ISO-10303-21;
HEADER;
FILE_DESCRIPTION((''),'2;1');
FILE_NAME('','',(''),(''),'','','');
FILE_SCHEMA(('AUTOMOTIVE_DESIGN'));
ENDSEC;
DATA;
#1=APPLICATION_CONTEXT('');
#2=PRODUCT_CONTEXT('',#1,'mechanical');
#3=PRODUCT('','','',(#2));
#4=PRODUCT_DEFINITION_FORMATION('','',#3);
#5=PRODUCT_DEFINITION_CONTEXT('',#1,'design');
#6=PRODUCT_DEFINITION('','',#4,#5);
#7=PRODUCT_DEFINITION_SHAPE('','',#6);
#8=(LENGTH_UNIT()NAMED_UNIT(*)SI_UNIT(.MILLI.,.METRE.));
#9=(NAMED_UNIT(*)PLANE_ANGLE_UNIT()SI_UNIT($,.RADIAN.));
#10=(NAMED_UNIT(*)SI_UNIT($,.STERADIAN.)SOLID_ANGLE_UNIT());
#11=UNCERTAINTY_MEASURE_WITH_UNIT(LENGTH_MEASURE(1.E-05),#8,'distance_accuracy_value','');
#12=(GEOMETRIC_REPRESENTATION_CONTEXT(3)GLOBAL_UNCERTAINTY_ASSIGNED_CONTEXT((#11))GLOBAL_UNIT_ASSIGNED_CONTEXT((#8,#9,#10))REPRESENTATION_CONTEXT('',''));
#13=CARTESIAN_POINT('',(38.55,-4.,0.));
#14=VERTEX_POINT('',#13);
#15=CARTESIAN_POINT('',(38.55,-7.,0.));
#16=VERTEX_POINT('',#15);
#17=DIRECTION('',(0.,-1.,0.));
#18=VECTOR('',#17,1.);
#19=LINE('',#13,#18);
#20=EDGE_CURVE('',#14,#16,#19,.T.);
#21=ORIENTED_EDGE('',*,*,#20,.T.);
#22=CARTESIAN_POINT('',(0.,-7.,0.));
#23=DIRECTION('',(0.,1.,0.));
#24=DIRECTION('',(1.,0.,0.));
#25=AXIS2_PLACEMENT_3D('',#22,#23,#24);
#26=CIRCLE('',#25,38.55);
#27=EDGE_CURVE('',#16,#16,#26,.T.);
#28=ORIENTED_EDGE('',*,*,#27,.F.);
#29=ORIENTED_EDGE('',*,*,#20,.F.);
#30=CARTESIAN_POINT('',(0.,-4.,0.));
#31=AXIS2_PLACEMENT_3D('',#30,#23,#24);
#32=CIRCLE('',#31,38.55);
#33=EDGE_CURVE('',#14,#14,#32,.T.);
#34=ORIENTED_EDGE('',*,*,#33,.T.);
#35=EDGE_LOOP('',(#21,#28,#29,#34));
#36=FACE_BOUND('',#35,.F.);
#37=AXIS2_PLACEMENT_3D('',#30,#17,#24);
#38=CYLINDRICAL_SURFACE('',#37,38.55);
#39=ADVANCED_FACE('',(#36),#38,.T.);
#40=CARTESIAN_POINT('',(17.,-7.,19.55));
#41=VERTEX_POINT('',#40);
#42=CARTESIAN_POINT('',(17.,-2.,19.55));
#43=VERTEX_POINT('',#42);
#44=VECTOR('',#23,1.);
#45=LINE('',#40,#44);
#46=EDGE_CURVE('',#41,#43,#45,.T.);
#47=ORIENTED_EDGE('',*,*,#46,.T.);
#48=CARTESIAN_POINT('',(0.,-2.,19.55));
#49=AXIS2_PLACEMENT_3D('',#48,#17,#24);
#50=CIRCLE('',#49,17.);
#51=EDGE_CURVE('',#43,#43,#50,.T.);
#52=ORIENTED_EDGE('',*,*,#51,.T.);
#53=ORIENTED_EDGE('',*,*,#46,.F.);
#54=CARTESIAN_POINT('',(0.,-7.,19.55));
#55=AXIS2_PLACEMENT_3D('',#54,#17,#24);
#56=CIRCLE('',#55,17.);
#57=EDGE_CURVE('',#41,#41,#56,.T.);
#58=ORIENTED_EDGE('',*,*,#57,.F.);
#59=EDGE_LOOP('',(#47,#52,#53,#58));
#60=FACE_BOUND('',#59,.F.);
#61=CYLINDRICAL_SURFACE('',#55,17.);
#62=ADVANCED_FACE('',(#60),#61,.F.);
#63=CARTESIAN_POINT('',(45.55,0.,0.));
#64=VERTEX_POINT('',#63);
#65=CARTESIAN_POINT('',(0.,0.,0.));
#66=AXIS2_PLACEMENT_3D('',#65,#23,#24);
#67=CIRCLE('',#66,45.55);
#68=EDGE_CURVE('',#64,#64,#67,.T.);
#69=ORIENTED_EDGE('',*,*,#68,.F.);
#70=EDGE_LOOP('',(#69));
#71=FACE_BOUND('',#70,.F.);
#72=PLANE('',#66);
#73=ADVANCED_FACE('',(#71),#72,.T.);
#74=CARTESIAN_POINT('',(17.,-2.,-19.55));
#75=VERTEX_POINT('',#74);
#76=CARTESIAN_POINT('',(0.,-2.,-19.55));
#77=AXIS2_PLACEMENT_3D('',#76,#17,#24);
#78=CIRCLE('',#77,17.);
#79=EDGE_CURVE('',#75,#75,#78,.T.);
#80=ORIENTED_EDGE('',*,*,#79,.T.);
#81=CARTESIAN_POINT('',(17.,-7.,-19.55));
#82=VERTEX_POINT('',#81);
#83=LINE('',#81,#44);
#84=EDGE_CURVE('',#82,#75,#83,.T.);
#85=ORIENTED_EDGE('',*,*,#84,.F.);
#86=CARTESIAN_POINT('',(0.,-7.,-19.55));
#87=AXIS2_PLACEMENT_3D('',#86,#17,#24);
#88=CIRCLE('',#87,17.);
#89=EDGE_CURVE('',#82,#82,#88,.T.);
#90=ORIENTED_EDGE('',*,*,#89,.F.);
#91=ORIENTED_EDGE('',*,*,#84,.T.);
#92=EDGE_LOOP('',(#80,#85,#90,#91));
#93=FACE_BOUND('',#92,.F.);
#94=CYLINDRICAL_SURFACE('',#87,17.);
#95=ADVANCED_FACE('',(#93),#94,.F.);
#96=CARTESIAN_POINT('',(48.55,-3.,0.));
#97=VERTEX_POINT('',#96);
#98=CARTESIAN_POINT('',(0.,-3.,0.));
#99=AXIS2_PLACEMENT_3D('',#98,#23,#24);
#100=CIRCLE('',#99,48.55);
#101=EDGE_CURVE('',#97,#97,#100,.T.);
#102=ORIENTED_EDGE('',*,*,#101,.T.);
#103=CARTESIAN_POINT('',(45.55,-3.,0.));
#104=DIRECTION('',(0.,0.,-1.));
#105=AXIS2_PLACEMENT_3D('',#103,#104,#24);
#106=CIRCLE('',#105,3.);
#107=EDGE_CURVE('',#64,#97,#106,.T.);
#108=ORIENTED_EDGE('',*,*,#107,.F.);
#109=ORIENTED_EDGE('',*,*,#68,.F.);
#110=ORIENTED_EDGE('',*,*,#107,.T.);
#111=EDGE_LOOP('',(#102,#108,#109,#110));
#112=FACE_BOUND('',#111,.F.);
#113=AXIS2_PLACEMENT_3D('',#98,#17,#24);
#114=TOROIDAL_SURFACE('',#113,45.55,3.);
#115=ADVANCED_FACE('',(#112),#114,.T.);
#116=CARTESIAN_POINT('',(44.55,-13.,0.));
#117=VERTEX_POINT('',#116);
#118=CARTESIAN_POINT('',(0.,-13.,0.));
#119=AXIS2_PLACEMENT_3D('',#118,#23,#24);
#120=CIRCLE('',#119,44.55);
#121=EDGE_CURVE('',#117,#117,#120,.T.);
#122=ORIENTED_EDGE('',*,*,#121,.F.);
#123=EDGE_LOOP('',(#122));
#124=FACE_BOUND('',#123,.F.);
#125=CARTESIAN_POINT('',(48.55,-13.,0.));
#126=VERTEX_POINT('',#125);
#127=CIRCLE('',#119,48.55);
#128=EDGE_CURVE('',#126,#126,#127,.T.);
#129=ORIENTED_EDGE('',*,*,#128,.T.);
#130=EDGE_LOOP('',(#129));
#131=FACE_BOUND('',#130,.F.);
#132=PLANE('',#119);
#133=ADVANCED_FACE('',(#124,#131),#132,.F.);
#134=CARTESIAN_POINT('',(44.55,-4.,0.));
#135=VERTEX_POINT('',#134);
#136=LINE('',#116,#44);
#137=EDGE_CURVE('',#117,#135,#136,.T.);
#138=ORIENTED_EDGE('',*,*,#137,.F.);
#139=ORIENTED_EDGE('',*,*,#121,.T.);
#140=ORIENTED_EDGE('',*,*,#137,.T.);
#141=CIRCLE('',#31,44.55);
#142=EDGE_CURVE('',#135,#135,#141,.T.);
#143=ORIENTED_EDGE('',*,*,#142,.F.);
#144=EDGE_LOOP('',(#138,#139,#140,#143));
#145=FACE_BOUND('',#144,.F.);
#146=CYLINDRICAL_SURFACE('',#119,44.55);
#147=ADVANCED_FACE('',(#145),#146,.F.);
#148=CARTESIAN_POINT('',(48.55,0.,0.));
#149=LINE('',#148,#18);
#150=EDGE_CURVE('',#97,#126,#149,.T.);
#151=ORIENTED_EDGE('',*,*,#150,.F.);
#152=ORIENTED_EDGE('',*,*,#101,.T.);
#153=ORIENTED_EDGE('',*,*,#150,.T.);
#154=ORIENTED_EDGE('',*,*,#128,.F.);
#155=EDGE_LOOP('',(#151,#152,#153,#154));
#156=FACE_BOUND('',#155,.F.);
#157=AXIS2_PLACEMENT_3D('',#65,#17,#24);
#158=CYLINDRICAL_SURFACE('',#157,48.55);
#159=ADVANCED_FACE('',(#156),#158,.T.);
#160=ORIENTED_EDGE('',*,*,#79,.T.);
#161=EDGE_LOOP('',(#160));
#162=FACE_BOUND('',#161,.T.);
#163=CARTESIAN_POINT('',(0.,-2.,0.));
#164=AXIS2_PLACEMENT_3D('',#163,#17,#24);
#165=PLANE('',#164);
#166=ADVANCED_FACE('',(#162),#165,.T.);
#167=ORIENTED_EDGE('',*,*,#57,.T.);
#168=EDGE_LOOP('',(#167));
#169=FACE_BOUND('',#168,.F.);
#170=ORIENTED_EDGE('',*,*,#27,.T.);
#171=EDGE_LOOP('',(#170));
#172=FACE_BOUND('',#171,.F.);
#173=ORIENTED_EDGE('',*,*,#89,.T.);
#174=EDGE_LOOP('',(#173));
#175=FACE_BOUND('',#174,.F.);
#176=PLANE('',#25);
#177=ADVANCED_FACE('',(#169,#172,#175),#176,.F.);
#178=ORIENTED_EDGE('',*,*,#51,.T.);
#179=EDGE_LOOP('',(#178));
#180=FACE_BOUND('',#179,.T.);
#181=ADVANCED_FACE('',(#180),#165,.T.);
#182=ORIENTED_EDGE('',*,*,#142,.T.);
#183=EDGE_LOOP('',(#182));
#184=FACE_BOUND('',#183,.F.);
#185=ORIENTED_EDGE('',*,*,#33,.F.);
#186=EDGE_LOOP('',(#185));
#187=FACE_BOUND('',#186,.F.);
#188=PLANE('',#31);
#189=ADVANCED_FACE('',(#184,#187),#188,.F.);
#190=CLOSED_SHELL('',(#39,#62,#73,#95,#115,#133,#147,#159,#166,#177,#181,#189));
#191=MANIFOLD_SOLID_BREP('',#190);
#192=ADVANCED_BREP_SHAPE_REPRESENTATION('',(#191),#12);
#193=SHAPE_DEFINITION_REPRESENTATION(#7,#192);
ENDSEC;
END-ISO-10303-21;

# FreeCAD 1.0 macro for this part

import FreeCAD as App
import Part
import Sketcher
from FreeCAD import Vector


def edges_at(feature, points):
    """Names of the edges that pass closest to the given points."""
    edges = feature.Shape.Edges
    near = lambda p: min(range(len(edges)), key=lambda i: edges[i].distToShape(Part.Vertex(*p))[0])
    return sorted({f"Edge{near(p) + 1}" for p in points})

doc = App.newDocument("Part")
body = doc.addObject("PartDesign::Body", "Body")

# Sketch on XY plane
sketch1 = doc.addObject("Sketcher::SketchObject", "Sketch")
body.addObject(sketch1)
sketch1.AttachmentSupport = (doc.XY_Plane, [""])
sketch1.MapMode = "FlatFace"
sketch1.addGeometry([
    Part.LineSegment(Vector(48.5, 0, 0), Vector(0, 0, 0)),  # 0
    Part.LineSegment(Vector(0, 0, 0), Vector(0, -7, 0)),  # 1
    Part.LineSegment(Vector(0, -7, 0), Vector(38.5, -7, 0)),  # 2
    Part.LineSegment(Vector(38.5, -7, 0), Vector(38.5, -4, 0)),  # 3
    Part.LineSegment(Vector(38.5, -4, 0), Vector(44.5, -4, 0)),  # 4
    Part.LineSegment(Vector(44.5, -4, 0), Vector(44.5, -13, 0)),  # 5
    Part.LineSegment(Vector(44.5, -13, 0), Vector(48.5, -13, 0)),  # 6
    Part.LineSegment(Vector(48.5, -13, 0), Vector(48.5, 0, 0)),  # 7
], False)
sketch1.addConstraint([
    Sketcher.Constraint("Coincident", 0, 2, 1, 1),
    Sketcher.Constraint("Coincident", 1, 2, 2, 1),
    Sketcher.Constraint("Coincident", 2, 2, 3, 1),
    Sketcher.Constraint("Coincident", 3, 2, 4, 1),
    Sketcher.Constraint("Coincident", 4, 2, 5, 1),
    Sketcher.Constraint("Coincident", 5, 2, 6, 1),
    Sketcher.Constraint("Coincident", 6, 2, 7, 1),
    Sketcher.Constraint("Coincident", 7, 2, 0, 1),
    Sketcher.Constraint("Horizontal", 0),
    Sketcher.Constraint("Vertical", 1),
    Sketcher.Constraint("Horizontal", 2),
    Sketcher.Constraint("Vertical", 3),
    Sketcher.Constraint("Horizontal", 4),
    Sketcher.Constraint("Vertical", 5),
    Sketcher.Constraint("Horizontal", 6),
    Sketcher.Constraint("Vertical", 7),
    Sketcher.Constraint("Coincident", 0, 2, -1, 1),
    Sketcher.Constraint("DistanceX", 4, 1, 4, 2, 6.0),
    Sketcher.Constraint("DistanceX", 6, 1, 6, 2, 4.0),
    Sketcher.Constraint("DistanceY", 1, 2, 1, 1, 7.0),
    Sketcher.Constraint("DistanceY", 7, 1, 7, 2, 13.0),
    Sketcher.Constraint("DistanceY", 3, 2, -1, 1, 4.0),
    Sketcher.Constraint("DistanceX", 0, 2, 0, 1, 48.55),
])
revolution = doc.addObject("PartDesign::Revolution", "Revolution")
body.addObject(revolution)
revolution.Profile = sketch1
revolution.ReferenceAxis = (sketch1, ["V_Axis"])
revolution.Angle = 360
doc.recompute()

fillet = doc.addObject("PartDesign::Fillet", "Fillet")
body.addObject(fillet)
fillet.Base = (revolution, edges_at(revolution, [(-48.55, 0, 0)]))
fillet.Radius = 3

# Sketch on XZ plane
sketch2 = doc.addObject("Sketcher::SketchObject", "Sketch001")
body.addObject(sketch2)
sketch2.AttachmentSupport = (doc.XZ_Plane, [""])
sketch2.MapMode = "FlatFace"
sketch2.AttachmentOffset = App.Placement(Vector(0, 0, 7), App.Rotation())
sketch2.addGeometry([
    Part.Circle(Vector(0, -20, 0), Vector(0, 0, 1), 17),
    Part.Circle(Vector(0, 20, 0), Vector(0, 0, 1), 17),
], False)
sketch2.addConstraint([
    Sketcher.Constraint("Equal", 0, 1),
    Sketcher.Constraint("Symmetric", 0, 3, 1, 3, -1, 1),
    Sketcher.Constraint("PointOnObject", 0, 3, -2),
    Sketcher.Constraint("Diameter", 0, 34.0),
    Sketcher.Constraint("DistanceY", 0, 3, -1, 1, 19.55),
])
pocket1 = doc.addObject("PartDesign::Pocket", "Pocket")
body.addObject(pocket1)
pocket1.Profile = sketch2
pocket1.Length = 5

doc.recompute()
